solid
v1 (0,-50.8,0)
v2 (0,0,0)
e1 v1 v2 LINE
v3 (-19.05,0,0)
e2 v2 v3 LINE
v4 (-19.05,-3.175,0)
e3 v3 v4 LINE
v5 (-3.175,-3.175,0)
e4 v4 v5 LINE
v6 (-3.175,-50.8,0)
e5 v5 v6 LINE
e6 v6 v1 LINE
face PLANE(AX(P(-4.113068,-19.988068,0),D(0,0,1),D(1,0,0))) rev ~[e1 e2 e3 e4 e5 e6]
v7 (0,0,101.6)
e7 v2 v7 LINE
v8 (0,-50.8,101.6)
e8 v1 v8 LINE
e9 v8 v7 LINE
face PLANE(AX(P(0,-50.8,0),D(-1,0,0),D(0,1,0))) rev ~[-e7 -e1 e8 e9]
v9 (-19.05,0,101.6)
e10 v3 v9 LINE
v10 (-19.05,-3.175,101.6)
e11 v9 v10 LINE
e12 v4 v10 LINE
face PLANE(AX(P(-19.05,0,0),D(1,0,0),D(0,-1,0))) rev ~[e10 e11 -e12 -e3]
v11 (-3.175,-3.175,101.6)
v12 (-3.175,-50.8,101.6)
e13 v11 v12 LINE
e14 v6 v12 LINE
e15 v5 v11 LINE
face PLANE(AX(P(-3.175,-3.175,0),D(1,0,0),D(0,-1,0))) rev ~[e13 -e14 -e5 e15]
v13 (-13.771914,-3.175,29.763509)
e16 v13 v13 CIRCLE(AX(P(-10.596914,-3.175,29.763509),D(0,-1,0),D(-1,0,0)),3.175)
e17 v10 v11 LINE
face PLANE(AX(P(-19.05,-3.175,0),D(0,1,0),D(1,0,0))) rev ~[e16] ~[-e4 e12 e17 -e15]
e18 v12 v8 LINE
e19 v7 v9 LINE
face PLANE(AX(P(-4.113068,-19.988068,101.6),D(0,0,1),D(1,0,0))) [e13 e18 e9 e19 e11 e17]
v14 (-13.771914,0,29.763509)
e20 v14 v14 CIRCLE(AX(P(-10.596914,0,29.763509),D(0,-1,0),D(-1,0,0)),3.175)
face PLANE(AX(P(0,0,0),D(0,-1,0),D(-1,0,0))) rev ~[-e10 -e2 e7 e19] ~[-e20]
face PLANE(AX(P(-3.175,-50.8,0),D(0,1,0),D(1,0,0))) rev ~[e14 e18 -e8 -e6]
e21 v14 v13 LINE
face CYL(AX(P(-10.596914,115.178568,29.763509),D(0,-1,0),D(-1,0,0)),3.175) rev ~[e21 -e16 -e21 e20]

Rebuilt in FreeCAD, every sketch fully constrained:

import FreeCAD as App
import Part
import Sketcher
from FreeCAD import Vector
Q = App.Units.Quantity


def add_polygon(sketch, points):
    """Adds a closed chain of lines whose ends are joined by coincident constraints."""
    first, n = sketch.GeometryCount, len(points)
    for a, b in zip(points, points[1:] + points[:1]):
        sketch.addGeometry(Part.LineSegment(App.Vector(*a, 0), App.Vector(*b, 0)), False)
    for i in range(n):
        sketch.addConstraint(Sketcher.Constraint("Coincident", first + i, 2, first + (i + 1) % n, 1))

doc = App.newDocument("Part")
body = doc.addObject("PartDesign::Body", "Body")

# Sketch on XY plane
sketch1 = body.newObject("Sketcher::SketchObject", "Sketch")
sketch1.AttachmentSupport = (doc.getObject("XY_Plane"), [""])
sketch1.MapMode = "FlatFace"
add_polygon(sketch1, [(0, 0), (-19.1, 0), (-19.1, -3.2), (-3.2, -3.2), (-3.2, -50.8), (0, -50.8)])  # lines 0-5
sketch1.addConstraint([
    Sketcher.Constraint("Horizontal", 0),
    Sketcher.Constraint("Vertical", 1),
    Sketcher.Constraint("Horizontal", 2),
    Sketcher.Constraint("Vertical", 3),
    Sketcher.Constraint("Horizontal", 4),
    Sketcher.Constraint("Vertical", 5),
    Sketcher.Constraint("Coincident", 5, 2, -1, 1),
    Sketcher.Constraint("Equal", 4, 1),
    Sketcher.Constraint("DistanceY", 5, 1, 5, 2, Q("2 in")),
    Sketcher.Constraint("DistanceX", 0, 2, 0, 1, Q("0.75 in")),
    Sketcher.Constraint("DistanceX", 2, 1, 2, 2, Q("0.625 in")),
])
pad1 = body.newObject("PartDesign::Pad", "Pad")
pad1.Profile = sketch1
pad1.Length = Q("4 in")

# Sketch on XZ plane
sketch2 = body.newObject("Sketcher::SketchObject", "Sketch001")
sketch2.AttachmentSupport = (doc.getObject("XZ_Plane"), [""])
sketch2.MapMode = "FlatFace"
sketch2.addGeometry(Part.Circle(Vector(-10.6, 29.8, 0), Vector(0, 0, 1), 3.2), False)
sketch2.addConstraint([
    Sketcher.Constraint("Diameter", 0, Q("0.25 in")),
    Sketcher.Constraint("DistanceY", -1, 1, 0, 3, 29.763509),
    Sketcher.Constraint("DistanceX", 0, 3, -1, 1, 10.596914),
])
doc.recompute()
hole = body.newObject("PartDesign::Hole", "Hole")
hole.Profile = sketch2
hole.ThreadType = "None"
hole.Diameter = Q("0.25 in")
hole.DepthType = "ThroughAll"
hole.Reversed = True

doc.recompute()
